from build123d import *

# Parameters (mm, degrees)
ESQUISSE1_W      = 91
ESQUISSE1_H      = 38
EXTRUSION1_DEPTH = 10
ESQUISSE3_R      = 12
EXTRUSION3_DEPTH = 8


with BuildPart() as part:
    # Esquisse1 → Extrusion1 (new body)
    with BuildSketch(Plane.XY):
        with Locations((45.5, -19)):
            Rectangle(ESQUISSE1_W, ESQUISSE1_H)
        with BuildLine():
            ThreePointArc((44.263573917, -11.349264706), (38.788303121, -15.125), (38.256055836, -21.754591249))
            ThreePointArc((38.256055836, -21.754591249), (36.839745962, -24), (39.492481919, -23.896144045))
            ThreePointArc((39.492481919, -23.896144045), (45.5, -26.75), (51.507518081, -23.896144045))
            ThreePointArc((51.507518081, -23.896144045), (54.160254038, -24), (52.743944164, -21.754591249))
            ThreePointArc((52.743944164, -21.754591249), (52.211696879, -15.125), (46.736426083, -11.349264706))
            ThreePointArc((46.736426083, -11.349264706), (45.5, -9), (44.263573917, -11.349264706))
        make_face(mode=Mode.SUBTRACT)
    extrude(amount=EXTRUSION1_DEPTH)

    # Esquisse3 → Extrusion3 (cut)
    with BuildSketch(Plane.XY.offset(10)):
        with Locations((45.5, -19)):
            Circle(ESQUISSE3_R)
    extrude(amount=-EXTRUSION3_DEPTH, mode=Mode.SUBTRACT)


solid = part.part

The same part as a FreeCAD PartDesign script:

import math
import FreeCAD as App
import Part
import Sketcher

V = App.Vector


def add_polygon(sketch, points):
    """Adds a closed chain of lines whose ends are joined by coincident constraints."""
    first, n = sketch.GeometryCount, len(points)
    for a, b in zip(points, points[1:] + points[:1]):
        sketch.addGeometry(Part.LineSegment(App.Vector(*a, 0), App.Vector(*b, 0)), False)
    for i in range(n):
        sketch.addConstraint(Sketcher.Constraint("Coincident", first + i, 2, first + (i + 1) % n, 1))

doc = App.newDocument("Part")
body = doc.addObject("PartDesign::Body", "Body")

# Sketch on XY plane
sketch1 = doc.addObject("Sketcher::SketchObject", "Sketch")
body.addObject(sketch1)
sketch1.AttachmentSupport = (doc.XY_Plane, [""])
sketch1.MapMode = "FlatFace"
add_polygon(sketch1, [(0, 0), (0, -38), (91, -38), (91, 0)])  # lines 0-3
sketch1.addGeometry(Part.ArcOfCircle(Part.Circle(V(45.5, -19, 0), V(0, 0, 1), 7.8), math.radians(99), math.radians(201)), False)  # 4
sketch1.addGeometry(Part.ArcOfCircle(Part.Circle(V(45.5, -10.5, 0), V(0, 0, 1), 1.5), math.radians(-34), math.radians(214)), False)  # 5
sketch1.addGeometry(Part.ArcOfCircle(Part.Circle(V(45.5, -19, 0), V(0, 0, 1), 7.8), math.radians(-21), math.radians(81)), False)  # 6
sketch1.addGeometry(Part.ArcOfCircle(Part.Circle(V(52.9, -23.2, 0), V(0, 0, 1), 1.5), math.radians(-154), math.radians(94)), False)  # 7
sketch1.addGeometry(Part.ArcOfCircle(Part.Circle(V(45.5, -19, 0), V(0, 0, 1), 7.8), math.radians(-141), math.radians(-39)), False)  # 8
sketch1.addGeometry(Part.ArcOfCircle(Part.Circle(V(38.1, -23.2, 0), V(0, 0, 1), 1.5), math.radians(86), math.radians(334)), False)  # 9
sketch1.addConstraint(Sketcher.Constraint("Coincident", 4, 1, 5, 2))
sketch1.addConstraint(Sketcher.Constraint("Coincident", 5, 1, 6, 2))
sketch1.addConstraint(Sketcher.Constraint("Coincident", 6, 1, 7, 2))
sketch1.addConstraint(Sketcher.Constraint("Coincident", 7, 1, 8, 2))
sketch1.addConstraint(Sketcher.Constraint("Coincident", 8, 1, 9, 2))
sketch1.addConstraint(Sketcher.Constraint("Coincident", 9, 1, 4, 2))
sketch1.addConstraint(Sketcher.Constraint("Vertical", 0))
sketch1.addConstraint(Sketcher.Constraint("Horizontal", 1))
sketch1.addConstraint(Sketcher.Constraint("Vertical", 2))
sketch1.addConstraint(Sketcher.Constraint("Horizontal", 3))
sketch1.addConstraint(Sketcher.Constraint("Coincident", 3, 2, -1, 1))
sketch1.addConstraint(Sketcher.Constraint("Coincident", 6, 3, 4, 3))
sketch1.addConstraint(Sketcher.Constraint("Coincident", 8, 3, 4, 3))
sketch1.addConstraint(Sketcher.Constraint("Equal", 4, 6))
sketch1.addConstraint(Sketcher.Constraint("Equal", 5, 7))
sketch1.addConstraint(Sketcher.Constraint("Equal", 6, 8))
sketch1.addConstraint(Sketcher.Constraint("Equal", 7, 9))
sketch1.addConstraint(Sketcher.Constraint("Horizontal", 7, 3, 9, 3))
sketch1.addConstraint(Sketcher.Constraint("Horizontal", 4, 1, 5, 1))
sketch1.addConstraint(Sketcher.Constraint("Horizontal", 7, 1, 8, 1))
sketch1.addConstraint(Sketcher.Constraint("Radius", 5, 1.5))
sketch1.addConstraint(Sketcher.Constraint("DistanceX", 1, 1, 1, 2, 91.0))
sketch1.addConstraint(Sketcher.Constraint("DistanceY", 0, 2, 0, 1, 38.0))
sketch1.addConstraint(Sketcher.Constraint("Radius", 4, 7.75))
sketch1.addConstraint(Sketcher.Constraint("DistanceY", 4, 3, -1, 1, 19.0))
sketch1.addConstraint(Sketcher.Constraint("DistanceX", -1, 1, 4, 3, 45.5))
sketch1.addConstraint(Sketcher.Constraint("DistanceY", 5, 3, -1, 1, 10.5))
sketch1.addConstraint(Sketcher.Constraint("DistanceY", 7, 3, -1, 1, 23.25))
sketch1.addConstraint(Sketcher.Constraint("DistanceY", 6, 1, -1, 1, 21.754591))
pad1 = doc.addObject("PartDesign::Pad", "Pad")
body.addObject(pad1)
pad1.Profile = sketch1
pad1.Length = 10

# Sketch on XY plane
sketch2 = doc.addObject("Sketcher::SketchObject", "Sketch001")
body.addObject(sketch2)
sketch2.AttachmentSupport = (doc.XY_Plane, [""])
sketch2.MapMode = "FlatFace"
sketch2.AttachmentOffset = App.Placement(V(0, 0, 10), App.Rotation())
sketch2.addGeometry(Part.Circle(V(46, -19, 0), V(0, 0, 1), 12), False)
sketch2.addConstraint(Sketcher.Constraint("Diameter", 0, 24.0))
sketch2.addConstraint(Sketcher.Constraint("DistanceY", 0, 3, -1, 1, 19.0))
sketch2.addConstraint(Sketcher.Constraint("DistanceX", -1, 1, 0, 3, 45.5))
pocket1 = doc.addObject("PartDesign::Pocket", "Pocket")
body.addObject(pocket1)
pocket1.Profile = sketch2
pocket1.Length = 8

doc.recompute()
